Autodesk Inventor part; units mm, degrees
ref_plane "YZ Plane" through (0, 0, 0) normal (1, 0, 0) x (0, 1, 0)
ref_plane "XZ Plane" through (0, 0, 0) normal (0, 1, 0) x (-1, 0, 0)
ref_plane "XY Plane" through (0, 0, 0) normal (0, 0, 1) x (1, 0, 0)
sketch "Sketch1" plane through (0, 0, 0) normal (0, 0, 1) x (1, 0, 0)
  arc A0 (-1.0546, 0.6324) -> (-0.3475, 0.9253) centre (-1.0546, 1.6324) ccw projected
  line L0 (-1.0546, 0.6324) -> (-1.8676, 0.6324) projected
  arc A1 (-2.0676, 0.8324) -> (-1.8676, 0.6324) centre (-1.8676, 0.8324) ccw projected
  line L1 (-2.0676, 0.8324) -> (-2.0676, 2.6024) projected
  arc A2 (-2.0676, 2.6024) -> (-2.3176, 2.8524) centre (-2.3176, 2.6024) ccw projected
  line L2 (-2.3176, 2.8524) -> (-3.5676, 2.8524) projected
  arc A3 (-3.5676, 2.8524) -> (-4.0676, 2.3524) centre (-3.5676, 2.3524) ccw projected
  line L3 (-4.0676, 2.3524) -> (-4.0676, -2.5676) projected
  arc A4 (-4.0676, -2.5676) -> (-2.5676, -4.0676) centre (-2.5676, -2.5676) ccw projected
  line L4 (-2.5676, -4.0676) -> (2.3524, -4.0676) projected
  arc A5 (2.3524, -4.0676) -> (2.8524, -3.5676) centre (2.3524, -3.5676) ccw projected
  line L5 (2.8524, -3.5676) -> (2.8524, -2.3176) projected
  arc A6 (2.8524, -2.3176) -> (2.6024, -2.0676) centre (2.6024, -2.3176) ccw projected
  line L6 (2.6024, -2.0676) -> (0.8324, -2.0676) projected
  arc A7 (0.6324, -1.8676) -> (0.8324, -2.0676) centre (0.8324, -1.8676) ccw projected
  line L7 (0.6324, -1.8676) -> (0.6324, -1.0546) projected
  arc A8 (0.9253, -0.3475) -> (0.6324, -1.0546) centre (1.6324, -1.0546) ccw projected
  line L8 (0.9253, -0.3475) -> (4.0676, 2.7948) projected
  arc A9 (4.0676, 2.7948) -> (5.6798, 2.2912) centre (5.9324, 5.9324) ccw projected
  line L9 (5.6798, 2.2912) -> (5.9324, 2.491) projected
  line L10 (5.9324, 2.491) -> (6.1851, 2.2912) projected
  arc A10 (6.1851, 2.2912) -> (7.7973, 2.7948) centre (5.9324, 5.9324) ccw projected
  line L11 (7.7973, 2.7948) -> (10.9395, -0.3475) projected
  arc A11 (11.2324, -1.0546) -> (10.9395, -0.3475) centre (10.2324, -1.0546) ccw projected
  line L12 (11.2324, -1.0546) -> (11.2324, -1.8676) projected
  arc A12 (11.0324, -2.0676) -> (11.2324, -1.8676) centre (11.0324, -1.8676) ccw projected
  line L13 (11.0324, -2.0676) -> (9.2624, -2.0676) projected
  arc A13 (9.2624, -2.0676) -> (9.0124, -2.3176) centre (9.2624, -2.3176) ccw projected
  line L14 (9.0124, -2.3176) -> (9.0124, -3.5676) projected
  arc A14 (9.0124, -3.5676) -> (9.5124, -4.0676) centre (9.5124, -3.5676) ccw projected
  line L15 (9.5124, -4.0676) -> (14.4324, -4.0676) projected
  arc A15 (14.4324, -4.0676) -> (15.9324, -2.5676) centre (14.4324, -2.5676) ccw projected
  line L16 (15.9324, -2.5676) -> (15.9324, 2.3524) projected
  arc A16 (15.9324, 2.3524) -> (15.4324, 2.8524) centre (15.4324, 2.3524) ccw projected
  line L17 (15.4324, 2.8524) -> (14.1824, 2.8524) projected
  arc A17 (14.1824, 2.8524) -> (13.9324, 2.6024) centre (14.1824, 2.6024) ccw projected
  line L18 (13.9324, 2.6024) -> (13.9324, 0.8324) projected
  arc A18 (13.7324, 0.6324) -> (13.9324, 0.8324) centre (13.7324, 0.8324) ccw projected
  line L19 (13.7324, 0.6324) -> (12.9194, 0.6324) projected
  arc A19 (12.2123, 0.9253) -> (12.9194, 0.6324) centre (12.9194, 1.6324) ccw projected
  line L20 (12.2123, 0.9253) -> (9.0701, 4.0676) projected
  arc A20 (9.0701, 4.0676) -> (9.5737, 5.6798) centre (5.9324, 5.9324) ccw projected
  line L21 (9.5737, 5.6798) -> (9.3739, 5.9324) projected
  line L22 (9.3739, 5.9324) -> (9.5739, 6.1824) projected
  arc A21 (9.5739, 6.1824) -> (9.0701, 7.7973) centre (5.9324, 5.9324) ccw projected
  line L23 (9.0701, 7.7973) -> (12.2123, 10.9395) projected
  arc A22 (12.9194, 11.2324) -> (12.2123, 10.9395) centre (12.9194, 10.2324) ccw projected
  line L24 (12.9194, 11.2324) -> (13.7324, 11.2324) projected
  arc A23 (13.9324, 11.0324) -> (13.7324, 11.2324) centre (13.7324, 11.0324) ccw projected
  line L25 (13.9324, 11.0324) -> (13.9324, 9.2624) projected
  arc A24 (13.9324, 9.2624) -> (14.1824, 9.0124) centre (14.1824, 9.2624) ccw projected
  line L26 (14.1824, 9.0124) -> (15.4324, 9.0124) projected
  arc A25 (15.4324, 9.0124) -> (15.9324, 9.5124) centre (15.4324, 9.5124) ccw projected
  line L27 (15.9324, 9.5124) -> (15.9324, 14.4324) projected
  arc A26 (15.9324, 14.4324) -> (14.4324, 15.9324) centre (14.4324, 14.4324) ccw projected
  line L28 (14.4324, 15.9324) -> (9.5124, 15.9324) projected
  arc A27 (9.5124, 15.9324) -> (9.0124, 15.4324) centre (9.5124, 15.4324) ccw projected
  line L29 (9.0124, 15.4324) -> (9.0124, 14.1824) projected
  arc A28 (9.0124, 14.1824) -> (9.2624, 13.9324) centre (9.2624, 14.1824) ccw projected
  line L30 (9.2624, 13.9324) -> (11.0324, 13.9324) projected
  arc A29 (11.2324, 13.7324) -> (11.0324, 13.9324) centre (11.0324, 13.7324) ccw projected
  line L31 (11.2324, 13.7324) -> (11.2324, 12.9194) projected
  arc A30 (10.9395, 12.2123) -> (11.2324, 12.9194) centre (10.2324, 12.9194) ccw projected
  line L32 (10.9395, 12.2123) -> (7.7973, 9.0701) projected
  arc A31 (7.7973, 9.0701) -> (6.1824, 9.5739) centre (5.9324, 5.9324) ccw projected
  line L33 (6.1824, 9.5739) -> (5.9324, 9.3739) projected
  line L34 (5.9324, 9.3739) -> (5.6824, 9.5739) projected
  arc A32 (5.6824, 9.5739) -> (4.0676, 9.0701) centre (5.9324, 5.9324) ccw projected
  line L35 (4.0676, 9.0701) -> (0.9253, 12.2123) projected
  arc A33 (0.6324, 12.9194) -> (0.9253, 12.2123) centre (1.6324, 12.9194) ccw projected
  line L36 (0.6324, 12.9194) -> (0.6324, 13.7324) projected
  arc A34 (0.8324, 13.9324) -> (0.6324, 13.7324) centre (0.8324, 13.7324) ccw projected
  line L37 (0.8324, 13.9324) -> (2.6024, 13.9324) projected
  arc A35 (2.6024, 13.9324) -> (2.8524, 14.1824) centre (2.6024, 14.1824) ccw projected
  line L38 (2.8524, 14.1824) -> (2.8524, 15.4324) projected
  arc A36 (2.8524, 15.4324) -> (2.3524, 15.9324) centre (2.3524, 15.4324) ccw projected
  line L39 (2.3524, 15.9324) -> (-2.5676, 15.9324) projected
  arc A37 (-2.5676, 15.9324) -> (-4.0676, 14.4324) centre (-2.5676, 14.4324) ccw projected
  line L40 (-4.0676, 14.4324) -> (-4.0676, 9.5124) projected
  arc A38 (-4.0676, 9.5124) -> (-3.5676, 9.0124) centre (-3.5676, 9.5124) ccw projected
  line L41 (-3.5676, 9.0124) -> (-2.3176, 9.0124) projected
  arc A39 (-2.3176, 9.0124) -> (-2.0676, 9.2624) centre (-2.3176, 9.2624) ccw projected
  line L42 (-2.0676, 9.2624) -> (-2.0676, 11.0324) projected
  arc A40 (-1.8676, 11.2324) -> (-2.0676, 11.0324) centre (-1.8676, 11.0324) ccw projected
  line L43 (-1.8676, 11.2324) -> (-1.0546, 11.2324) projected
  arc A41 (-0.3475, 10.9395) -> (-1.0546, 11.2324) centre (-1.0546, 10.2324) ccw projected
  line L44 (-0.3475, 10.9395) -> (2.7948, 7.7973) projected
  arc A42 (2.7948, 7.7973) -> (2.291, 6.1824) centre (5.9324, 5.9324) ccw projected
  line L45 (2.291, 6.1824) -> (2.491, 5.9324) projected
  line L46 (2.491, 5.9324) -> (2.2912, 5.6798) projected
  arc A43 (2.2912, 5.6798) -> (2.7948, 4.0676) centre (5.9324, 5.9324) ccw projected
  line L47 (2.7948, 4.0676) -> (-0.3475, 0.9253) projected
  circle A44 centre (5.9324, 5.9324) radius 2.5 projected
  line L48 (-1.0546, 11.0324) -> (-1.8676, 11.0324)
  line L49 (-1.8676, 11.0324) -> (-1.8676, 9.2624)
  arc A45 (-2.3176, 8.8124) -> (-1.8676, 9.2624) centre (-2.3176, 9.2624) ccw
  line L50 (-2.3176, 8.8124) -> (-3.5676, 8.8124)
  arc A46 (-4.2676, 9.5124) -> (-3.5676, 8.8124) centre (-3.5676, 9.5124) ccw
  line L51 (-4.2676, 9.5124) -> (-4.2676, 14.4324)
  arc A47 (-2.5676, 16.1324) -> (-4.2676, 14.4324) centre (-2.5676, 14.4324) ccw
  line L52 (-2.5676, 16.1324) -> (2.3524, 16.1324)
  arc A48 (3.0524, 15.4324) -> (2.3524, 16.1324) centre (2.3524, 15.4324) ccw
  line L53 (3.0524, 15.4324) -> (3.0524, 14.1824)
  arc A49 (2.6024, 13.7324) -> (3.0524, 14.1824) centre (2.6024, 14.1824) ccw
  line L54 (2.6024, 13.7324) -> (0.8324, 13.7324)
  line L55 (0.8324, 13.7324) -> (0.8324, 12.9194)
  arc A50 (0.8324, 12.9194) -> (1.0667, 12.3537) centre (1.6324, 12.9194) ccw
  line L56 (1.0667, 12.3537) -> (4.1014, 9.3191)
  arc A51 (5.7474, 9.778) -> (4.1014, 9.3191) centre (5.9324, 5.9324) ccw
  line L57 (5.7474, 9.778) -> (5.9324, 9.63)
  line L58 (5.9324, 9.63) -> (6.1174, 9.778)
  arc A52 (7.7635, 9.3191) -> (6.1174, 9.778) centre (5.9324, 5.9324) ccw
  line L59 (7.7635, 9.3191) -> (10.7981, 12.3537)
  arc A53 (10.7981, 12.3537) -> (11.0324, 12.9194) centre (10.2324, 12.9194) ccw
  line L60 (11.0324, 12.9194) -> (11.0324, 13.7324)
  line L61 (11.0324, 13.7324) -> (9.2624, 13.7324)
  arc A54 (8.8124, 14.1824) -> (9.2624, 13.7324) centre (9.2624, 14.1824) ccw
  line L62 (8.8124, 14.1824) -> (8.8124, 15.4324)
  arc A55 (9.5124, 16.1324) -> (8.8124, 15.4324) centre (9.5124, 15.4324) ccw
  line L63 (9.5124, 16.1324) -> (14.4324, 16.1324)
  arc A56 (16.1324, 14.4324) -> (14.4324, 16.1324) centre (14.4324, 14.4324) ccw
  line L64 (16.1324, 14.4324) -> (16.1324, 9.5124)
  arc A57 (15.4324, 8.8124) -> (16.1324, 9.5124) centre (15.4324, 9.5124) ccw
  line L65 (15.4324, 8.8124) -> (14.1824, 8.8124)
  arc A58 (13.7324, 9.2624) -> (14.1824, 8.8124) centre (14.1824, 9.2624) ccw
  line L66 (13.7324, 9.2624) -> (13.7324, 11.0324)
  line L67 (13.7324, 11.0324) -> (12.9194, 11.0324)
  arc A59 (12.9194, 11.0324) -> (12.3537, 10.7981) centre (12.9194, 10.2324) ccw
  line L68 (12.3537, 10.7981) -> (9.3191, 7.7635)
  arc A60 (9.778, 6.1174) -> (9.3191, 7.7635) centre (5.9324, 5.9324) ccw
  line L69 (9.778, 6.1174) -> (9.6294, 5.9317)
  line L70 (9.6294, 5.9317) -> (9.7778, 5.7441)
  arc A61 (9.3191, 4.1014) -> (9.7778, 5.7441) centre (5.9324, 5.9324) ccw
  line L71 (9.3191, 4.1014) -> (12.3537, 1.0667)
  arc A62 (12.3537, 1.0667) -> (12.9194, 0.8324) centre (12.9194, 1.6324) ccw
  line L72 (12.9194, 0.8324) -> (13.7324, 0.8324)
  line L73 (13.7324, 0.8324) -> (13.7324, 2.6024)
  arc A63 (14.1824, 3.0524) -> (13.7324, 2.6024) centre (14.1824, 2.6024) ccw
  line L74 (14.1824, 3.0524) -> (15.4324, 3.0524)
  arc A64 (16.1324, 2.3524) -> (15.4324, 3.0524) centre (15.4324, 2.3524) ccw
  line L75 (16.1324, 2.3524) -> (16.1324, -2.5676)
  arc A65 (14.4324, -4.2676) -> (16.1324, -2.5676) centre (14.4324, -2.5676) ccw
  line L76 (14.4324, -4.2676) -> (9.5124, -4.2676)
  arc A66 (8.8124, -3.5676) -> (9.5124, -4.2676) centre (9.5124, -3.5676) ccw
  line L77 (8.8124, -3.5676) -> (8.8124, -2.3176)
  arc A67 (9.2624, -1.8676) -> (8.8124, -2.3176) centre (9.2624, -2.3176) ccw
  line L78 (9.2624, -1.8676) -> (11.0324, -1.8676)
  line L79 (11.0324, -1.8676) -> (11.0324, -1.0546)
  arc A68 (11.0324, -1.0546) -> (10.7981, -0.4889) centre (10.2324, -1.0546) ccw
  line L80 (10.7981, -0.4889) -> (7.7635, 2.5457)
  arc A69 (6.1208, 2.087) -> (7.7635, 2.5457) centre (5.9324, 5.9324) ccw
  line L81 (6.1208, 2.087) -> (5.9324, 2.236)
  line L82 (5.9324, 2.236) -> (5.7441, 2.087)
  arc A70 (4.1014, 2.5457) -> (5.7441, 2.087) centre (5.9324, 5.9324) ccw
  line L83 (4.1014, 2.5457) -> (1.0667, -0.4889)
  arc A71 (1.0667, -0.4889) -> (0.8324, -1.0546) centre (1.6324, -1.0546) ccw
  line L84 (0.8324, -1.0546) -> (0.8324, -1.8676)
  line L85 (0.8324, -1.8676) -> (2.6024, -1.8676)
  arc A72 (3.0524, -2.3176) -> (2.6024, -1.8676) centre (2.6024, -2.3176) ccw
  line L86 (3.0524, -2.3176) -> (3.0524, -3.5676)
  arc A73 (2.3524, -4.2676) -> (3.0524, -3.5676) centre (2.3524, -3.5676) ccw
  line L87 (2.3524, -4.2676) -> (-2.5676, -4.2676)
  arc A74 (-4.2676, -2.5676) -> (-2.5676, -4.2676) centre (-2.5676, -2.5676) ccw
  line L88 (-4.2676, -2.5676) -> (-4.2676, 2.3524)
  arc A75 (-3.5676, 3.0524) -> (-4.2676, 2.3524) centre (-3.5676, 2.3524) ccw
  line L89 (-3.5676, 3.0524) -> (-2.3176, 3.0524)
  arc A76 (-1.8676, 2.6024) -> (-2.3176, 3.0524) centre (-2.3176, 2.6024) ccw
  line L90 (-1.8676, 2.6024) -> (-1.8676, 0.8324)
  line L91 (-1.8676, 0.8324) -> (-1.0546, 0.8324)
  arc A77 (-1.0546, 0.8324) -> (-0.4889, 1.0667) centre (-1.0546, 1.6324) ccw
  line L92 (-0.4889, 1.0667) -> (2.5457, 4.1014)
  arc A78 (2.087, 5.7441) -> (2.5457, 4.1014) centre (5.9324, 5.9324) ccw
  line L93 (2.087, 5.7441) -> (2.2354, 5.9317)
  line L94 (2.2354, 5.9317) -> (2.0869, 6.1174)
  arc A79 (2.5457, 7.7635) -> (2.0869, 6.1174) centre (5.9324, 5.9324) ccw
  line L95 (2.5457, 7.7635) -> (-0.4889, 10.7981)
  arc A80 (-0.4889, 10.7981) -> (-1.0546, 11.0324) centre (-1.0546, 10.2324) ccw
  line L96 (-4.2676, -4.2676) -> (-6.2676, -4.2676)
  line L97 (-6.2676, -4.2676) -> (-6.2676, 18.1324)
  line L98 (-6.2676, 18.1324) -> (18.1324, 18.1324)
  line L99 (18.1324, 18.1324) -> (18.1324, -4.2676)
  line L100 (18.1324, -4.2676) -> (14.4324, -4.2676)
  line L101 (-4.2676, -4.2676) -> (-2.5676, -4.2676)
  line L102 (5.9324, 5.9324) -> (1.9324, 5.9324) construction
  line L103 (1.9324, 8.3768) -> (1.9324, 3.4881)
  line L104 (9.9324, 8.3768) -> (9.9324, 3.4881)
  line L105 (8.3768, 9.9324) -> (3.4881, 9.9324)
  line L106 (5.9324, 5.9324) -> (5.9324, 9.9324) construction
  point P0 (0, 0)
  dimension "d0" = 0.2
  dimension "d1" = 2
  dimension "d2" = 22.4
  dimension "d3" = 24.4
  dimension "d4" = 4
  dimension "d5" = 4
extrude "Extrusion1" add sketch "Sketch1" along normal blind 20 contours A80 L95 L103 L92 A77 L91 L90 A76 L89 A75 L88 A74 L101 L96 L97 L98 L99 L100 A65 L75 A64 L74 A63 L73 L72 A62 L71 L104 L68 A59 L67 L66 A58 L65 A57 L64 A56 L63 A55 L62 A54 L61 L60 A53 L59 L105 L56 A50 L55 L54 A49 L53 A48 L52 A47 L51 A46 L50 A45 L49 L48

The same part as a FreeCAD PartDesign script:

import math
import FreeCAD as App
import Part
import Sketcher
Q = App.Units.Quantity

doc = App.newDocument("Part")
body = doc.addObject("PartDesign::Body", "Body")

# Sketch on XY plane
sketch1 = body.newObject("Sketcher::SketchObject", "Sketch")
sketch1.AttachmentSupport = (doc.getObject("XY_Plane"), [""])
sketch1.MapMode = "FlatFace"
sketch1.addGeometry([
    Part.ArcOfCircle(Part.Circle(App.Vector(-1.05, 10.23, 0), App.Vector(0, 0, 1), 0.8), math.radians(45), math.radians(90)),  # 0
    Part.LineSegment(App.Vector(-1.05, 11.03, 0), App.Vector(-1.87, 11.03, 0)),  # 1
    Part.LineSegment(App.Vector(-1.87, 11.03, 0), App.Vector(-1.87, 9.26, 0)),  # 2
    Part.ArcOfCircle(Part.Circle(App.Vector(-2.32, 9.26, 0), App.Vector(0, 0, 1), 0.45), math.radians(-90), math.radians(0)),  # 3
    Part.LineSegment(App.Vector(-2.32, 8.81, 0), App.Vector(-3.57, 8.81, 0)),  # 4
    Part.ArcOfCircle(Part.Circle(App.Vector(-3.57, 9.51, 0), App.Vector(0, 0, 1), 0.7), math.radians(180), math.radians(270)),  # 5
    Part.LineSegment(App.Vector(-4.27, 9.51, 0), App.Vector(-4.27, 14.43, 0)),  # 6
    Part.ArcOfCircle(Part.Circle(App.Vector(-2.57, 14.43, 0), App.Vector(0, 0, 1), 1.7), math.radians(90), math.radians(180)),  # 7
    Part.LineSegment(App.Vector(-2.57, 16.13, 0), App.Vector(2.35, 16.13, 0)),  # 8
    Part.ArcOfCircle(Part.Circle(App.Vector(2.35, 15.43, 0), App.Vector(0, 0, 1), 0.7), math.radians(0), math.radians(90)),  # 9
    Part.LineSegment(App.Vector(3.05, 15.43, 0), App.Vector(3.05, 14.18, 0)),  # 10
    Part.ArcOfCircle(Part.Circle(App.Vector(2.6, 14.18, 0), App.Vector(0, 0, 1), 0.45), math.radians(-90), math.radians(0)),  # 11
    Part.LineSegment(App.Vector(2.6, 13.73, 0), App.Vector(0.83, 13.73, 0)),  # 12
    Part.LineSegment(App.Vector(0.83, 13.73, 0), App.Vector(0.83, 12.92, 0)),  # 13
    Part.ArcOfCircle(Part.Circle(App.Vector(1.63, 12.92, 0), App.Vector(0, 0, 1), 0.8), math.radians(180), math.radians(225)),  # 14
    Part.LineSegment(App.Vector(1.07, 12.35, 0), App.Vector(3.49, 9.93, 0)),  # 15
    Part.LineSegment(App.Vector(3.49, 9.93, 0), App.Vector(8.38, 9.93, 0)),  # 16
    Part.LineSegment(App.Vector(8.38, 9.93, 0), App.Vector(10.8, 12.35, 0)),  # 17
    Part.ArcOfCircle(Part.Circle(App.Vector(10.23, 12.92, 0), App.Vector(0, 0, 1), 0.8), math.radians(-45), math.radians(0)),  # 18
    Part.LineSegment(App.Vector(11.03, 12.92, 0), App.Vector(11.03, 13.73, 0)),  # 19
    Part.LineSegment(App.Vector(11.03, 13.73, 0), App.Vector(9.26, 13.73, 0)),  # 20
    Part.ArcOfCircle(Part.Circle(App.Vector(9.26, 14.18, 0), App.Vector(0, 0, 1), 0.45), math.radians(180), math.radians(270)),  # 21
    Part.LineSegment(App.Vector(8.81, 14.18, 0), App.Vector(8.81, 15.43, 0)),  # 22
    Part.ArcOfCircle(Part.Circle(App.Vector(9.51, 15.43, 0), App.Vector(0, 0, 1), 0.7), math.radians(90), math.radians(180)),  # 23
    Part.LineSegment(App.Vector(9.51, 16.13, 0), App.Vector(14.43, 16.13, 0)),  # 24
    Part.ArcOfCircle(Part.Circle(App.Vector(14.43, 14.43, 0), App.Vector(0, 0, 1), 1.7), math.radians(0), math.radians(90)),  # 25
    Part.LineSegment(App.Vector(16.13, 14.43, 0), App.Vector(16.13, 9.51, 0)),  # 26
    Part.ArcOfCircle(Part.Circle(App.Vector(15.43, 9.51, 0), App.Vector(0, 0, 1), 0.7), math.radians(-90), math.radians(0)),  # 27
    Part.LineSegment(App.Vector(15.43, 8.81, 0), App.Vector(14.18, 8.81, 0)),  # 28
    Part.ArcOfCircle(Part.Circle(App.Vector(14.18, 9.26, 0), App.Vector(0, 0, 1), 0.45), math.radians(180), math.radians(270)),  # 29
    Part.LineSegment(App.Vector(13.73, 9.26, 0), App.Vector(13.73, 11.03, 0)),  # 30
    Part.LineSegment(App.Vector(13.73, 11.03, 0), App.Vector(12.92, 11.03, 0)),  # 31
    Part.ArcOfCircle(Part.Circle(App.Vector(12.92, 10.23, 0), App.Vector(0, 0, 1), 0.8), math.radians(90), math.radians(135)),  # 32
    Part.LineSegment(App.Vector(12.35, 10.8, 0), App.Vector(9.93, 8.38, 0)),  # 33
    Part.LineSegment(App.Vector(9.93, 8.38, 0), App.Vector(9.93, 3.49, 0)),  # 34
    Part.LineSegment(App.Vector(9.93, 3.49, 0), App.Vector(12.35, 1.07, 0)),  # 35
    Part.ArcOfCircle(Part.Circle(App.Vector(12.92, 1.63, 0), App.Vector(0, 0, 1), 0.8), math.radians(-135), math.radians(-90)),  # 36
    Part.LineSegment(App.Vector(12.92, 0.83, 0), App.Vector(13.73, 0.83, 0)),  # 37
    Part.LineSegment(App.Vector(13.73, 0.83, 0), App.Vector(13.73, 2.6, 0)),  # 38
    Part.ArcOfCircle(Part.Circle(App.Vector(14.18, 2.6, 0), App.Vector(0, 0, 1), 0.45), math.radians(90), math.radians(180)),  # 39
    Part.LineSegment(App.Vector(14.18, 3.05, 0), App.Vector(15.43, 3.05, 0)),  # 40
    Part.ArcOfCircle(Part.Circle(App.Vector(15.43, 2.35, 0), App.Vector(0, 0, 1), 0.7), math.radians(0), math.radians(90)),  # 41
    Part.LineSegment(App.Vector(16.13, 2.35, 0), App.Vector(16.13, -2.57, 0)),  # 42
    Part.ArcOfCircle(Part.Circle(App.Vector(14.43, -2.57, 0), App.Vector(0, 0, 1), 1.7), math.radians(-90), math.radians(0)),  # 43
    Part.LineSegment(App.Vector(14.43, -4.27, 0), App.Vector(18.13, -4.27, 0)),  # 44
    Part.LineSegment(App.Vector(18.13, -4.27, 0), App.Vector(18.13, 18.13, 0)),  # 45
    Part.LineSegment(App.Vector(18.13, 18.13, 0), App.Vector(-6.27, 18.13, 0)),  # 46
    Part.LineSegment(App.Vector(-6.27, 18.13, 0), App.Vector(-6.27, -4.27, 0)),  # 47
    Part.LineSegment(App.Vector(-6.27, -4.27, 0), App.Vector(-2.57, -4.27, 0)),  # 48
    Part.ArcOfCircle(Part.Circle(App.Vector(-2.57, -2.57, 0), App.Vector(0, 0, 1), 1.7), math.radians(180), math.radians(270)),  # 49
    Part.LineSegment(App.Vector(-4.27, -2.57, 0), App.Vector(-4.27, 2.35, 0)),  # 50
    Part.ArcOfCircle(Part.Circle(App.Vector(-3.57, 2.35, 0), App.Vector(0, 0, 1), 0.7), math.radians(90), math.radians(180)),  # 51
    Part.LineSegment(App.Vector(-3.57, 3.05, 0), App.Vector(-2.32, 3.05, 0)),  # 52
    Part.ArcOfCircle(Part.Circle(App.Vector(-2.32, 2.6, 0), App.Vector(0, 0, 1), 0.45), math.radians(0), math.radians(90)),  # 53
    Part.LineSegment(App.Vector(-1.87, 2.6, 0), App.Vector(-1.87, 0.83, 0)),  # 54
    Part.LineSegment(App.Vector(-1.87, 0.83, 0), App.Vector(-1.05, 0.83, 0)),  # 55
    Part.ArcOfCircle(Part.Circle(App.Vector(-1.05, 1.63, 0), App.Vector(0, 0, 1), 0.8), math.radians(-90), math.radians(-45)),  # 56
    Part.LineSegment(App.Vector(-0.49, 1.07, 0), App.Vector(1.93, 3.49, 0)),  # 57
    Part.LineSegment(App.Vector(1.93, 3.49, 0), App.Vector(1.93, 8.38, 0)),  # 58
    Part.LineSegment(App.Vector(1.93, 8.38, 0), App.Vector(-0.49, 10.8, 0)),  # 59
], False)
sketch1.addConstraint([
    Sketcher.Constraint("Tangent", 0, 2, 1, 1),
    Sketcher.Constraint("Coincident", 1, 2, 2, 1),
    Sketcher.Constraint("Tangent", 2, 2, 3, 2),
    Sketcher.Constraint("Tangent", 3, 1, 4, 1),
    Sketcher.Constraint("Tangent", 4, 2, 5, 2),
    Sketcher.Constraint("Tangent", 5, 1, 6, 1),
    Sketcher.Constraint("Tangent", 6, 2, 7, 2),
    Sketcher.Constraint("Tangent", 7, 1, 8, 1),
    Sketcher.Constraint("Tangent", 8, 2, 9, 2),
    Sketcher.Constraint("Tangent", 9, 1, 10, 1),
    Sketcher.Constraint("Tangent", 10, 2, 11, 2),
    Sketcher.Constraint("Tangent", 11, 1, 12, 1),
    Sketcher.Constraint("Coincident", 12, 2, 13, 1),
    Sketcher.Constraint("Tangent", 13, 2, 14, 1),
    Sketcher.Constraint("Tangent", 14, 2, 15, 1),
    Sketcher.Constraint("Coincident", 15, 2, 16, 1),
    Sketcher.Constraint("Coincident", 16, 2, 17, 1),
    Sketcher.Constraint("Tangent", 17, 2, 18, 1),
    Sketcher.Constraint("Tangent", 18, 2, 19, 1),
    Sketcher.Constraint("Coincident", 19, 2, 20, 1),
    Sketcher.Constraint("Tangent", 20, 2, 21, 2),
    Sketcher.Constraint("Tangent", 21, 1, 22, 1),
    Sketcher.Constraint("Tangent", 22, 2, 23, 2),
    Sketcher.Constraint("Tangent", 23, 1, 24, 1),
    Sketcher.Constraint("Tangent", 24, 2, 25, 2),
    Sketcher.Constraint("Tangent", 25, 1, 26, 1),
    Sketcher.Constraint("Tangent", 26, 2, 27, 2),
    Sketcher.Constraint("Tangent", 27, 1, 28, 1),
    Sketcher.Constraint("Tangent", 28, 2, 29, 2),
    Sketcher.Constraint("Tangent", 29, 1, 30, 1),
    Sketcher.Constraint("Coincident", 30, 2, 31, 1),
    Sketcher.Constraint("Tangent", 31, 2, 32, 1),
    Sketcher.Constraint("Tangent", 32, 2, 33, 1),
    Sketcher.Constraint("Coincident", 33, 2, 34, 1),
    Sketcher.Constraint("Coincident", 34, 2, 35, 1),
    Sketcher.Constraint("Tangent", 35, 2, 36, 1),
    Sketcher.Constraint("Tangent", 36, 2, 37, 1),
    Sketcher.Constraint("Coincident", 37, 2, 38, 1),
    Sketcher.Constraint("Tangent", 38, 2, 39, 2),
    Sketcher.Constraint("Tangent", 39, 1, 40, 1),
    Sketcher.Constraint("Tangent", 40, 2, 41, 2),
    Sketcher.Constraint("Tangent", 41, 1, 42, 1),
    Sketcher.Constraint("Tangent", 42, 2, 43, 2),
    Sketcher.Constraint("Tangent", 43, 1, 44, 1),
    Sketcher.Constraint("Coincident", 44, 2, 45, 1),
    Sketcher.Constraint("Coincident", 45, 2, 46, 1),
    Sketcher.Constraint("Coincident", 46, 2, 47, 1),
    Sketcher.Constraint("Coincident", 47, 2, 48, 1),
    Sketcher.Constraint("Tangent", 48, 2, 49, 2),
    Sketcher.Constraint("Tangent", 49, 1, 50, 1),
    Sketcher.Constraint("Tangent", 50, 2, 51, 2),
    Sketcher.Constraint("Tangent", 51, 1, 52, 1),
    Sketcher.Constraint("Tangent", 52, 2, 53, 2),
    Sketcher.Constraint("Tangent", 53, 1, 54, 1),
    Sketcher.Constraint("Coincident", 54, 2, 55, 1),
    Sketcher.Constraint("Tangent", 55, 2, 56, 1),
    Sketcher.Constraint("Tangent", 56, 2, 57, 1),
    Sketcher.Constraint("Coincident", 57, 2, 58, 1),
    Sketcher.Constraint("Coincident", 58, 2, 59, 1),
    Sketcher.Constraint("Tangent", 59, 2, 0, 1),
    Sketcher.Constraint("Horizontal", 1),
    Sketcher.Constraint("Vertical", 2),
    Sketcher.Constraint("Horizontal", 4),
    Sketcher.Constraint("Vertical", 6),
    Sketcher.Constraint("Horizontal", 8),
    Sketcher.Constraint("Vertical", 10),
    Sketcher.Constraint("Horizontal", 12),
    Sketcher.Constraint("Vertical", 13),
    Sketcher.Constraint("Horizontal", 16),
    Sketcher.Constraint("Vertical", 19),
    Sketcher.Constraint("Horizontal", 20),
    Sketcher.Constraint("Vertical", 22),
    Sketcher.Constraint("Horizontal", 24),
    Sketcher.Constraint("Vertical", 26),
    Sketcher.Constraint("Horizontal", 28),
    Sketcher.Constraint("Vertical", 30),
    Sketcher.Constraint("Horizontal", 31),
    Sketcher.Constraint("Vertical", 34),
    Sketcher.Constraint("Horizontal", 37),
    Sketcher.Constraint("Vertical", 38),
    Sketcher.Constraint("Horizontal", 40),
    Sketcher.Constraint("Vertical", 42),
    Sketcher.Constraint("Horizontal", 44),
    Sketcher.Constraint("Vertical", 45),
    Sketcher.Constraint("Horizontal", 46),
    Sketcher.Constraint("Vertical", 47),
    Sketcher.Constraint("Horizontal", 48),
    Sketcher.Constraint("Vertical", 50),
    Sketcher.Constraint("Horizontal", 52),
    Sketcher.Constraint("Vertical", 54),
    Sketcher.Constraint("Horizontal", 55),
    Sketcher.Constraint("Vertical", 58),
    Sketcher.Constraint("Equal", 5, 9),
    Sketcher.Constraint("Equal", 3, 11),
    Sketcher.Constraint("Equal", 0, 14),
    Sketcher.Constraint("Equal", 14, 18),
    Sketcher.Constraint("Equal", 11, 21),
    Sketcher.Constraint("Equal", 9, 23),
    Sketcher.Constraint("Equal", 7, 25),
    Sketcher.Constraint("Equal", 23, 27),
    Sketcher.Constraint("Equal", 21, 29),
    Sketcher.Constraint("Equal", 18, 32),
    Sketcher.Constraint("Equal", 32, 36),
    Sketcher.Constraint("Equal", 29, 39),
    Sketcher.Constraint("Equal", 27, 41),
    Sketcher.Constraint("Equal", 25, 43),
    Sketcher.Constraint("Equal", 43, 49),
    Sketcher.Constraint("Equal", 41, 51),
    Sketcher.Constraint("Equal", 39, 53),
    Sketcher.Constraint("Equal", 36, 56),
    Sketcher.Constraint("Perpendicular", 15, 17),
    Sketcher.Constraint("Parallel", 17, 33),
    Sketcher.Constraint("Perpendicular", 33, 35),
    Sketcher.Constraint("Perpendicular", 35, 57),
    Sketcher.Constraint("Perpendicular", 57, 59),
    Sketcher.Constraint("Horizontal", 14, 3, 18, 3),
    Sketcher.Constraint("Horizontal", 11, 3, 21, 3),
    Sketcher.Constraint("Horizontal", 9, 3, 23, 3),
    Sketcher.Constraint("Horizontal", 5, 3, 27, 3),
    Sketcher.Constraint("Horizontal", 0, 3, 32, 3),
    Sketcher.Constraint("Horizontal", 43, 3, 49, 3),
    Sketcher.Constraint("Horizontal", 41, 3, 51, 3),
    Sketcher.Constraint("Horizontal", 36, 3, 56, 3),
    Sketcher.Constraint("Horizontal", 14, 2, 17, 2),
    Sketcher.Constraint("Horizontal", 34, 2, 57, 2),
    Sketcher.Constraint("Horizontal", 33, 2, 58, 2),
    Sketcher.Constraint("Vertical", 32, 3, 36, 3),
    Sketcher.Constraint("Vertical", 29, 3, 39, 3),
    Sketcher.Constraint("Vertical", 27, 3, 41, 3),
    Sketcher.Constraint("Vertical", 7, 3, 49, 3),
    Sketcher.Constraint("Vertical", 3, 3, 53, 3),
    Sketcher.Constraint("Equal", 12, 20),
    Sketcher.Constraint("Equal", 8, 24),
    Sketcher.Constraint("Equal", 4, 28),
    Sketcher.Constraint("Equal", 1, 31),
    Sketcher.Constraint("Equal", 44, 48),
    Sketcher.Constraint("Equal", 20, 2),
    Sketcher.Constraint("Equal", 24, 6),
    Sketcher.Constraint("Equal", 52, 10),
    Sketcher.Constraint("Equal", 55, 13),
    Sketcher.Constraint("Equal", 16, 34),
    Sketcher.Constraint("Equal", 30, 38),
    Sketcher.Constraint("Equal", 26, 42),
    Sketcher.Constraint("Equal", 17, 33),
    Sketcher.Constraint("DistanceX", 46, 2, 46, 1, Q("24.4 mm")),
    Sketcher.Constraint("DistanceY", 45, 1, 45, 2, Q("22.4 mm")),
    Sketcher.Constraint("Radius", 0, Q("0.8 mm")),
    Sketcher.Constraint("Radius", 5, Q("0.7 mm")),
    Sketcher.Constraint("Radius", 7, Q("1.7 mm")),
    Sketcher.Constraint("Radius", 3, Q("0.45 mm")),
    Sketcher.Constraint("DistanceX", 44, 1, 44, 2, Q("3.7 mm")),
    Sketcher.Constraint("DistanceX", 4, 2, 4, 1, Q("1.25 mm")),
    Sketcher.Constraint("DistanceX", 8, 1, 8, 2, Q("4.92 mm")),
    Sketcher.Constraint("DistanceX", 12, 2, 12, 1, Q("1.77 mm")),
    Sketcher.Constraint("DistanceX", 1, 2, 1, 1, Q("0.813 mm")),
    Sketcher.Constraint("DistanceX", 16, 1, 16, 2, Q("4.8887 mm")),
    Sketcher.Constraint("DistanceX", -1, 1, 15, 2, Q("3.488 mm")),
    Sketcher.Constraint("DistanceY", -1, 1, 32, 2, Q("10.798 mm")),
])
pad1 = body.newObject("PartDesign::Pad", "Pad")
pad1.Profile = sketch1
pad1.Length = 20

doc.recompute()
